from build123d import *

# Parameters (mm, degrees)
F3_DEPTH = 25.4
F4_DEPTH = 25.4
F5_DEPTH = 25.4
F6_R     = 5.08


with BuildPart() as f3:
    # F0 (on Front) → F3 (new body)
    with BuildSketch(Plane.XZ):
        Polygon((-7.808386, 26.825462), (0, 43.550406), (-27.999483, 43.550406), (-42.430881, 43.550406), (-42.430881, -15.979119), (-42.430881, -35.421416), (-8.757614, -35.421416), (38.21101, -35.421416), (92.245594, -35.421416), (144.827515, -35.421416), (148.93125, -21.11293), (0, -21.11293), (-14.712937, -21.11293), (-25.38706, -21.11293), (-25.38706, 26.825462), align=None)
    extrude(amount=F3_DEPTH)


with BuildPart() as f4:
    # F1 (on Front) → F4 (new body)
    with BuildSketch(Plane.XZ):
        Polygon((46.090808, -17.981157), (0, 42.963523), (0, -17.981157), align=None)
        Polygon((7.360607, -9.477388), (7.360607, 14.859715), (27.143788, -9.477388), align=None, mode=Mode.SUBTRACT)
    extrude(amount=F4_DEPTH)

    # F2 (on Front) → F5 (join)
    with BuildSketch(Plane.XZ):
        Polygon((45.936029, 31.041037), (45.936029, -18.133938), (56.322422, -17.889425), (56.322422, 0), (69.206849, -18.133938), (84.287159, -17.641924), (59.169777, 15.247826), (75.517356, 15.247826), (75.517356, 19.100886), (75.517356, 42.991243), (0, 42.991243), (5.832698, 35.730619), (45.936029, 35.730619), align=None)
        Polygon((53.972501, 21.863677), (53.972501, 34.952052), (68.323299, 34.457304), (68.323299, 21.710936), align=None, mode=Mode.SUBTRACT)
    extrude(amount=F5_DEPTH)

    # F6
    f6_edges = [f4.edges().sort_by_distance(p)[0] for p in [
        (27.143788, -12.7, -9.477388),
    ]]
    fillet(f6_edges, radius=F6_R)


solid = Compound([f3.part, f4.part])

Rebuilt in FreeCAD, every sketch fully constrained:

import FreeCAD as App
import Part
import Sketcher

V = App.Vector
Q = App.Units.Quantity


def edges_at(feature, points):
    """Names of the edges that pass closest to the given points."""
    edges = feature.Shape.Edges
    near = lambda p: min(range(len(edges)), key=lambda i: edges[i].distToShape(Part.Vertex(*p))[0])
    return sorted({f"Edge{near(p) + 1}" for p in points})


def add_polygon(sketch, points):
    """Adds a closed chain of lines whose ends are joined by coincident constraints."""
    first, n = sketch.GeometryCount, len(points)
    for a, b in zip(points, points[1:] + points[:1]):
        sketch.addGeometry(Part.LineSegment(App.Vector(*a, 0), App.Vector(*b, 0)), False)
    for i in range(n):
        sketch.addConstraint(Sketcher.Constraint("Coincident", first + i, 2, first + (i + 1) % n, 1))

doc = App.newDocument("Part")
params = doc.addObject("Spreadsheet::Sheet", "Params")
for row, (alias, value) in enumerate([
    ("pad1_length", "1 in"),
    ("pad2_length", "1 in"),
    ("pad3_length", "1 in"),
    ("fillet_radius", "0.2 in"),
], start=1):
    params.set(f"A{row}", alias)
    params.set(f"B{row}", "=" + value)
    params.setAlias(f"B{row}", alias)

body = doc.addObject("PartDesign::Body", "Body")

# Sketch on XZ plane
sketch1 = body.newObject("Sketcher::SketchObject", "Sketch")
sketch1.AttachmentSupport = (doc.getObject("XZ_Plane"), [""])
sketch1.MapMode = "FlatFace"
add_polygon(sketch1, [(-8, 27), (0, 44), (-42, 44), (-42, -35), (145, -35), (149, -21), (-25, -21), (-25, 27)])  # lines 0-7
sketch1.addConstraint([
    Sketcher.Constraint("Horizontal", 1),
    Sketcher.Constraint("Vertical", 2),
    Sketcher.Constraint("Horizontal", 3),
    Sketcher.Constraint("Horizontal", 5),
    Sketcher.Constraint("Vertical", 6),
    Sketcher.Constraint("Horizontal", 7),
    Sketcher.Constraint("PointOnObject", 0, 2, -2),
    Sketcher.Constraint("DistanceX", 1, 2, 1, 1, Q("42.430881 mm")),
    Sketcher.Constraint("DistanceX", 5, 2, 5, 1, Q("174.31831 mm")),
    Sketcher.Constraint("DistanceX", 3, 1, 3, 2, Q("187.258396 mm")),
    Sketcher.Constraint("DistanceX", 7, 1, 7, 2, Q("17.578674 mm")),
    Sketcher.Constraint("DistanceY", 2, 2, 2, 1, Q("78.971822 mm")),
    Sketcher.Constraint("DistanceY", 6, 1, 6, 2, Q("47.938392 mm")),
    Sketcher.Constraint("DistanceX", -1, 1, 4, 2, Q("148.93125 mm")),
    Sketcher.Constraint("DistanceY", 4, 2, -1, 1, Q("21.11293 mm")),
    Sketcher.Constraint("DistanceY", 2, 2, 6, 2, Q("62.246878 mm")),
])
pad1 = body.newObject("PartDesign::Pad", "Pad")
pad1.Profile = sketch1
pad1.setExpression("Length", "Params.pad1_length")
body2 = doc.addObject("PartDesign::Body", "Body001")

# Sketch on XZ plane
sketch2 = body2.newObject("Sketcher::SketchObject", "Sketch001")
sketch2.AttachmentSupport = (doc.getObject("XZ_Plane001"), [""])
sketch2.MapMode = "FlatFace"
add_polygon(sketch2, [(46, -18), (0, 43), (0, -18)])  # lines 0-2
add_polygon(sketch2, [(27, -9), (7, -9), (7, 15)])  # lines 3-5
sketch2.addConstraint([
    Sketcher.Constraint("Vertical", 1),
    Sketcher.Constraint("Horizontal", 2),
    Sketcher.Constraint("Horizontal", 3),
    Sketcher.Constraint("Vertical", 4),
    Sketcher.Constraint("PointOnObject", 0, 2, -2),
    Sketcher.Constraint("DistanceX", 2, 1, 2, 2, Q("46.090808 mm")),
    Sketcher.Constraint("DistanceX", 3, 2, 3, 1, Q("19.783181 mm")),
    Sketcher.Constraint("DistanceY", 1, 2, 1, 1, Q("60.94468 mm")),
    Sketcher.Constraint("DistanceX", 3, 2, 2, 2, Q("38.730201 mm")),
    Sketcher.Constraint("DistanceY", 4, 1, 4, 2, Q("24.337103 mm")),
    Sketcher.Constraint("DistanceY", 1, 2, 3, 2, Q("8.503769 mm")),
    Sketcher.Constraint("DistanceY", -1, 1, 0, 2, Q("42.963523 mm")),
])
pad2 = body2.newObject("PartDesign::Pad", "Pad001")
pad2.Profile = sketch2
pad2.setExpression("Length", "Params.pad2_length")

# Sketch on XZ plane
sketch3 = body2.newObject("Sketcher::SketchObject", "Sketch002")
sketch3.AttachmentSupport = (doc.getObject("XZ_Plane001"), [""])
sketch3.MapMode = "FlatFace"
add_polygon(sketch3, [(45.936029, -18.133938), (56.322422, -17.889425), (56.322422, 0), (69.206849, -18.133938), (84.287159, -17.641924), (59.169777, 15.247826), (75.517356, 15.247826), (75.517356, 42.991243), (0, 42.991243), (5.832698, 35.730619), (45.936029, 35.730619)])  # lines 0-10
add_polygon(sketch3, [(68.323299, 21.710936), (53.972501, 21.863677), (53.972501, 34.952052), (68.323299, 34.457304)])  # lines 11-14
sketch3.addConstraint([
    Sketcher.Constraint("Vertical", 1),
    Sketcher.Constraint("Horizontal", 5),
    Sketcher.Constraint("Vertical", 6),
    Sketcher.Constraint("Horizontal", 7),
    Sketcher.Constraint("Horizontal", 9),
    Sketcher.Constraint("Vertical", 10),
    Sketcher.Constraint("Vertical", 12),
    Sketcher.Constraint("Vertical", 14),
    Sketcher.Constraint("PointOnObject", 1, 2, -1),
    Sketcher.Constraint("PointOnObject", 7, 2, -2),
    Sketcher.Constraint("Horizontal", 2, 2, 10, 2),
    Sketcher.Constraint("DistanceX", 5, 1, 5, 2, Q("16.347579 mm")),
    Sketcher.Constraint("DistanceX", 9, 1, 9, 2, Q("40.103331 mm")),
    Sketcher.Constraint("DistanceX", -1, 1, 11, 2, Q("53.972501 mm")),
    Sketcher.Constraint("DistanceX", -1, 1, 13, 2, Q("68.323299 mm")),
    Sketcher.Constraint("DistanceY", 0, 2, 3, 2, Q("0.247501 mm")),
    Sketcher.Constraint("Distance", 0, Q("10.389271 mm")),
    Sketcher.Constraint("Distance", 8, Q("9.313272 mm")),
    Sketcher.Constraint("Distance", 11, Q("14.351611 mm")),
    Sketcher.Constraint("DistanceX", 7, 2, 7, 1, Q("75.517356 mm")),
    Sketcher.Constraint("DistanceY", 1, 1, 1, 2, Q("17.889425 mm")),
    Sketcher.Constraint("DistanceY", 6, 1, 6, 2, Q("27.743417 mm")),
    Sketcher.Constraint("DistanceY", 10, 2, 10, 1, Q("53.864557 mm")),
    Sketcher.Constraint("DistanceY", 12, 1, 12, 2, Q("13.088375 mm")),
    Sketcher.Constraint("DistanceY", 14, 2, 14, 1, Q("12.746368 mm")),
    Sketcher.Constraint("DistanceX", -1, 1, 2, 2, Q("69.206849 mm")),
    Sketcher.Constraint("DistanceY", 2, 2, -1, 1, Q("18.133938 mm")),
    Sketcher.Constraint("DistanceX", -1, 1, 3, 2, Q("84.287159 mm")),
    Sketcher.Constraint("DistanceX", -1, 1, 9, 2, Q("45.936029 mm")),
    Sketcher.Constraint("DistanceY", 4, 2, 11, 2, Q("6.615851 mm")),
])
pad3 = body2.newObject("PartDesign::Pad", "Pad002")
pad3.Profile = sketch3
pad3.setExpression("Length", "Params.pad3_length")
doc.recompute()

fillet = body2.newObject("PartDesign::Fillet", "Fillet")
fillet.Base = (pad3, edges_at(pad3, [(27.144, -12.7, -9.477)]))
fillet.setExpression("Radius", "Params.fillet_radius")

doc.recompute()
